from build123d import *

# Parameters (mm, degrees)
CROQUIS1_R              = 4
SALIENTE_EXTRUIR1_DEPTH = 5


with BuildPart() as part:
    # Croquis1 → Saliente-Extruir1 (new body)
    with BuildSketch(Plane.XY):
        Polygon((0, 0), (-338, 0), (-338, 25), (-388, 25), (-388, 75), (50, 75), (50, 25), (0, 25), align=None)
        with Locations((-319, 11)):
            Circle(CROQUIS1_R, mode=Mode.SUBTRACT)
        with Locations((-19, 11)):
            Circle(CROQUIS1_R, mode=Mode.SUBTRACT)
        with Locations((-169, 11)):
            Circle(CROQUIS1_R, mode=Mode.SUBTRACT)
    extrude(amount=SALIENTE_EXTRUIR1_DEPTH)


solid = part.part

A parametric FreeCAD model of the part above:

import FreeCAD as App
import Part
import Sketcher

V = App.Vector
Q = App.Units.Quantity


def add_polygon(sketch, points):
    """Adds a closed chain of lines whose ends are joined by coincident constraints."""
    first, n = sketch.GeometryCount, len(points)
    for a, b in zip(points, points[1:] + points[:1]):
        sketch.addGeometry(Part.LineSegment(App.Vector(*a, 0), App.Vector(*b, 0)), False)
    for i in range(n):
        sketch.addConstraint(Sketcher.Constraint("Coincident", first + i, 2, first + (i + 1) % n, 1))

doc = App.newDocument("Part")
params = doc.addObject("Spreadsheet::Sheet", "Params")
for row, (alias, value) in enumerate([
    ("sketch1_diameter", "8 mm"),
    ("sketch1_width", "338 mm"),
    ("sketch1_width2", "50 mm"),
    ("sketch1_height", "25 mm"),
    ("pad1_length", "5 mm"),
], start=1):
    params.set(f"A{row}", alias)
    params.set(f"B{row}", "=" + value)
    params.setAlias(f"B{row}", alias)

body = doc.addObject("PartDesign::Body", "Body")

sketch1 = body.newObject("Sketcher::SketchObject", "Sketch")
sketch1.AttachmentSupport = (doc.getObject("XY_Plane"), [""])
sketch1.MapMode = "FlatFace"
add_polygon(sketch1, [(-338, 0), (0, 0), (0, 25), (50, 25), (50, 75), (-388, 75), (-388, 25), (-338, 25)])
sketch1.addGeometry(Part.Circle(V(-19, 11, 0), V(0, 0, 1), 4), False)
sketch1.addGeometry(Part.Circle(V(-169, 11, 0), V(0, 0, 1), 4), False)
sketch1.addGeometry(Part.Circle(V(-319, 11, 0), V(0, 0, 1), 4), False)
sketch1.addConstraint([
    Sketcher.Constraint("Horizontal", 0),
    Sketcher.Constraint("Vertical", 1),
    Sketcher.Constraint("Horizontal", 2),
    Sketcher.Constraint("Vertical", 3),
    Sketcher.Constraint("Horizontal", 4),
    Sketcher.Constraint("Vertical", 5),
    Sketcher.Constraint("Horizontal", 6),
    Sketcher.Constraint("Vertical", 7),
    Sketcher.Constraint("Coincident", 0, 2, -1, 1),
    Sketcher.Constraint("Equal", 8, 9),
    Sketcher.Constraint("Equal", 9, 10),
    Sketcher.Constraint("Horizontal", 8, 3, 9, 3),
    Sketcher.Constraint("Horizontal", 9, 3, 10, 3),
    Sketcher.Constraint("Horizontal", 2, 2, 5, 2),
    Sketcher.Constraint("Equal", 2, 6),
    Sketcher.Constraint("Equal", 6, 3),
    Sketcher.Constraint("Diameter", 8, Q("8 mm")),
    Sketcher.Constraint("DistanceX", 0, 1, 0, 2, Q("338 mm")),
    Sketcher.Constraint("DistanceX", 2, 1, 2, 2, Q("50 mm")),
    Sketcher.Constraint("DistanceY", 1, 1, 1, 2, Q("25 mm")),
    Sketcher.Constraint("DistanceX", 8, 3, -1, 1, Q("19 mm")),
    Sketcher.Constraint("DistanceY", -1, 1, 8, 3, Q("11 mm")),
    Sketcher.Constraint("DistanceX", 9, 3, -1, 1, Q("169 mm")),
    Sketcher.Constraint("DistanceX", 10, 3, -1, 1, Q("319 mm")),
])
sketch1.setExpression("Constraints[24]", "Params.sketch1_diameter")
sketch1.setExpression("Constraints[25]", "Params.sketch1_width")
sketch1.setExpression("Constraints[26]", "Params.sketch1_width2")
sketch1.setExpression("Constraints[27]", "Params.sketch1_height")
pad1 = body.newObject("PartDesign::Pad", "Pad")
pad1.Profile = sketch1
pad1.setExpression("Length", "Params.pad1_length")

doc.recompute()
